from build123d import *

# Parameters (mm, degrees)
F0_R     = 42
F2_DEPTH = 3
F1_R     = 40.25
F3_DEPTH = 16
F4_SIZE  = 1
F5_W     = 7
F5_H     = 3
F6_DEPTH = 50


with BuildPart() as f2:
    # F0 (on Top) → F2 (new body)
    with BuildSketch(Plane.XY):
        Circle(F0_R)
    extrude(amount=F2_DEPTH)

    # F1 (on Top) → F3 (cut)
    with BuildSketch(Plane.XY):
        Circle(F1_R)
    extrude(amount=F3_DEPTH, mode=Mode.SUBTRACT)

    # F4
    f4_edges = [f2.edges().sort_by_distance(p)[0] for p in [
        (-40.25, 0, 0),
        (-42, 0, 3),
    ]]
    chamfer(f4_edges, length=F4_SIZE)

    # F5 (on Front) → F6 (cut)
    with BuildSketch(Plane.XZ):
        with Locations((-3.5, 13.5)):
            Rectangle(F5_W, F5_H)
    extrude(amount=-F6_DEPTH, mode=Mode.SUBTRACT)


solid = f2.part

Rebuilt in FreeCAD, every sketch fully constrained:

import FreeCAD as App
import Part
import Sketcher
from FreeCAD import Vector


def edges_at(feature, points):
    """Names of the edges that pass closest to the given points."""
    edges = feature.Shape.Edges
    near = lambda p: min(range(len(edges)), key=lambda i: edges[i].distToShape(Part.Vertex(*p))[0])
    return sorted({f"Edge{near(p) + 1}" for p in points})


def add_polygon(sketch, points):
    """Adds a closed chain of lines whose ends are joined by coincident constraints."""
    first, n = sketch.GeometryCount, len(points)
    for a, b in zip(points, points[1:] + points[:1]):
        sketch.addGeometry(Part.LineSegment(App.Vector(*a, 0), App.Vector(*b, 0)), False)
    for i in range(n):
        sketch.addConstraint(Sketcher.Constraint("Coincident", first + i, 2, first + (i + 1) % n, 1))

doc = App.newDocument("Part")
params = doc.addObject("Spreadsheet::Sheet", "Params")
for row, (alias, value) in enumerate([
    ("sketch1_diameter", "84 mm"),
    ("pad1_length", "3 mm"),
    ("sketch2_diameter", "80.5 mm"),
    ("pocket1_length", "16 mm"),
    ("chamfer_size", "1 mm"),
    ("sketch3_width", "7 mm"),
    ("sketch3_height", "3 mm"),
    ("pocket2_length", "50 mm"),
], start=1):
    params.set(f"A{row}", alias)
    params.set(f"B{row}", "=" + value)
    params.setAlias(f"B{row}", alias)

body = doc.addObject("PartDesign::Body", "Body")

sketch1 = body.newObject("Sketcher::SketchObject", "Sketch")
sketch1.AttachmentSupport = (doc.getObject("XY_Plane"), [""])
sketch1.MapMode = "FlatFace"
sketch1.addGeometry(Part.Circle(Vector(0, 0, 0), Vector(0, 0, 1), 42), False)
sketch1.addConstraint(Sketcher.Constraint("Coincident", 0, 3, -1, 1))
sketch1.addConstraint(Sketcher.Constraint("Diameter", 0, 84.0))
sketch1.setExpression("Constraints[1]", "Params.sketch1_diameter")
pad1 = body.newObject("PartDesign::Pad", "Pad")
pad1.Profile = sketch1
pad1.setExpression("Length", "Params.pad1_length")

sketch2 = body.newObject("Sketcher::SketchObject", "Sketch001")
sketch2.AttachmentSupport = (doc.getObject("XY_Plane"), [""])
sketch2.MapMode = "FlatFace"
sketch2.addGeometry(Part.Circle(Vector(0, 0, 0), Vector(0, 0, 1), 40.25), False)
sketch2.addConstraint(Sketcher.Constraint("Coincident", 0, 3, -1, 1))
sketch2.addConstraint(Sketcher.Constraint("Diameter", 0, 80.5))
sketch2.setExpression("Constraints[1]", "Params.sketch2_diameter")
pocket1 = body.newObject("PartDesign::Pocket", "Pocket")
pocket1.Profile = sketch2
pocket1.setExpression("Length", "Params.pocket1_length")
pocket1.Reversed = True
doc.recompute()

chamfer = body.newObject("PartDesign::Chamfer", "Chamfer")
chamfer.Base = (pocket1, edges_at(pocket1, [(-40.25, 0, 0), (-42, 0, 3)]))
chamfer.setExpression("Size", "Params.chamfer_size")

sketch3 = body.newObject("Sketcher::SketchObject", "Sketch002")
sketch3.AttachmentSupport = (doc.getObject("XZ_Plane"), [""])
sketch3.MapMode = "FlatFace"
add_polygon(sketch3, [(-7, 15), (-7, 12), (0, 12), (0, 15)])
sketch3.addConstraint(Sketcher.Constraint("Vertical", 0))
sketch3.addConstraint(Sketcher.Constraint("Horizontal", 1))
sketch3.addConstraint(Sketcher.Constraint("Vertical", 2))
sketch3.addConstraint(Sketcher.Constraint("Horizontal", 3))
sketch3.addConstraint(Sketcher.Constraint("PointOnObject", 1, 2, -2))
sketch3.addConstraint(Sketcher.Constraint("DistanceX", 1, 1, 1, 2, 7.0))
sketch3.addConstraint(Sketcher.Constraint("DistanceY", 0, 2, 0, 1, 3.0))
sketch3.addConstraint(Sketcher.Constraint("DistanceY", -1, 1, 0, 2, 12.0))
sketch3.setExpression("Constraints[9]", "Params.sketch3_width")
sketch3.setExpression("Constraints[10]", "Params.sketch3_height")
pocket2 = body.newObject("PartDesign::Pocket", "Pocket001")
pocket2.Profile = sketch3
pocket2.setExpression("Length", "Params.pocket2_length")

doc.recompute()
